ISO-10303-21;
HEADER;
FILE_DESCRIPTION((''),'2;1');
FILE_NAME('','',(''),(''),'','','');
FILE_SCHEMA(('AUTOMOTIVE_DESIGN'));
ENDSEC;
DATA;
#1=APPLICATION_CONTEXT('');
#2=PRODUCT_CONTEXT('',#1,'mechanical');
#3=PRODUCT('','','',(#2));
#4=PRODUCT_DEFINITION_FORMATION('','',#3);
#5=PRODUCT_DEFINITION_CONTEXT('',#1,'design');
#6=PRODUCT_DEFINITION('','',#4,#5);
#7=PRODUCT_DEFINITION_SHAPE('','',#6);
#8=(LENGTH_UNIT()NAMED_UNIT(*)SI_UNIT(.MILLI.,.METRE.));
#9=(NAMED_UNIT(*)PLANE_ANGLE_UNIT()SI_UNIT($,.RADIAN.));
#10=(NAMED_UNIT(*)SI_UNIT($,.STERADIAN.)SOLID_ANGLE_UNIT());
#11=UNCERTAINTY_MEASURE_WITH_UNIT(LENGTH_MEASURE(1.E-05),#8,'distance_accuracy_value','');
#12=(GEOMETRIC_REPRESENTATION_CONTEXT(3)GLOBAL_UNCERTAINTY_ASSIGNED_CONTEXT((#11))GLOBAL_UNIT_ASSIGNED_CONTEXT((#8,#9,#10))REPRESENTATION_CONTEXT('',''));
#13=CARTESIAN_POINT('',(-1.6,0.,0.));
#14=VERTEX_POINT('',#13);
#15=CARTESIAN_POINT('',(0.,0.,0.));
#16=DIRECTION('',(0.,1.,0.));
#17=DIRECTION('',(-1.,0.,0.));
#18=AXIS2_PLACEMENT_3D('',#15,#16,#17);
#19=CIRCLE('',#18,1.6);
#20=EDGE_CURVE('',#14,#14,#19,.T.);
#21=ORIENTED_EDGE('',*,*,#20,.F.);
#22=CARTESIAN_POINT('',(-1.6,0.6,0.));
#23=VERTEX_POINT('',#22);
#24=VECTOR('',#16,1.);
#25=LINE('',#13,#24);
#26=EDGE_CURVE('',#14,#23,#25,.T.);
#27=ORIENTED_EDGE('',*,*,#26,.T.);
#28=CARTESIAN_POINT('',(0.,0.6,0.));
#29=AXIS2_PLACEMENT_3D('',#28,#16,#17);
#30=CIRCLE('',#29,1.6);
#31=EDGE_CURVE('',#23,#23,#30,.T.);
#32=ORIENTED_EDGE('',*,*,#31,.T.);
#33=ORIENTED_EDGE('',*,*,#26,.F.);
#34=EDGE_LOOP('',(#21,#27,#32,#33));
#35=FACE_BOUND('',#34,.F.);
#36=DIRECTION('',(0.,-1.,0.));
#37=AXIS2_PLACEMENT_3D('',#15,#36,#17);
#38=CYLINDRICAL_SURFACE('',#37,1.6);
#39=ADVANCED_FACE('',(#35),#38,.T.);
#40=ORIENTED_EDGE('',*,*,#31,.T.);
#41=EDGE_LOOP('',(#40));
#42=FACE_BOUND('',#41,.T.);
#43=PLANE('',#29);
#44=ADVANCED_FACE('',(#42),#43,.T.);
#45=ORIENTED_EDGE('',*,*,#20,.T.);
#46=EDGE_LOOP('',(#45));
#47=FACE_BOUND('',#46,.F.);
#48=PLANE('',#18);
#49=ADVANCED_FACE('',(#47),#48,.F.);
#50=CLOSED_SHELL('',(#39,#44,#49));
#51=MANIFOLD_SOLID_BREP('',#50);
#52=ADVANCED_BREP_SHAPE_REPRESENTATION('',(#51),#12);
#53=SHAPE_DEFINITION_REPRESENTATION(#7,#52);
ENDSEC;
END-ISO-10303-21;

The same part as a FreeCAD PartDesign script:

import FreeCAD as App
import Part
import Sketcher
from FreeCAD import Vector
Q = App.Units.Quantity

doc = App.newDocument("Part")
body = doc.addObject("PartDesign::Body", "Body")

sketch1 = body.newObject("Sketcher::SketchObject", "Sketch")
sketch1.AttachmentSupport = (doc.getObject("XZ_Plane"), [""])
sketch1.MapMode = "FlatFace"
sketch1.addGeometry(Part.Circle(Vector(0, 0, 0), Vector(0, 0, 1), 1.6), False)
sketch1.addConstraint(Sketcher.Constraint("Coincident", 0, 3, -1, 1))
sketch1.addConstraint(Sketcher.Constraint("Diameter", 0, Q("3.2 mm")))
pad1 = body.newObject("PartDesign::Pad", "Pad")
pad1.Profile = sketch1
pad1.Length = 0.6
pad1.Reversed = True

doc.recompute()
